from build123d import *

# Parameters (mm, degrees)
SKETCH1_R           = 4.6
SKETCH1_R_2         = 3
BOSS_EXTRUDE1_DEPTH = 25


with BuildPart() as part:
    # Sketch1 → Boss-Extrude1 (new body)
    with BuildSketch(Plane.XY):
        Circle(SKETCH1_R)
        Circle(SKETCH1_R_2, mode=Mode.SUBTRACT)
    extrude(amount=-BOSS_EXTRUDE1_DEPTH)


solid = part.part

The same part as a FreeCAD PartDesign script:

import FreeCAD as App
import Part
import Sketcher

V = App.Vector
Q = App.Units.Quantity

doc = App.newDocument("Part")
body = doc.addObject("PartDesign::Body", "Body")

sketch1 = body.newObject("Sketcher::SketchObject", "Sketch")
sketch1.AttachmentSupport = (doc.getObject("XY_Plane"), [""])
sketch1.MapMode = "FlatFace"
sketch1.addGeometry([
    Part.Circle(V(0, 0, 0), V(0, 0, 1), 4.6),
    Part.Circle(V(0, 0, 0), V(0, 0, 1), 3),
], False)
sketch1.addConstraint([
    Sketcher.Constraint("Coincident", 0, 3, -1, 1),
    Sketcher.Constraint("Coincident", 1, 3, -1, 1),
    Sketcher.Constraint("Diameter", 1, Q("6 mm")),
    Sketcher.Constraint("Diameter", 0, Q("9.2 mm")),
])
pad1 = body.newObject("PartDesign::Pad", "Pad")
pad1.Profile = sketch1
pad1.Length = 25
pad1.Reversed = True

doc.recompute()
